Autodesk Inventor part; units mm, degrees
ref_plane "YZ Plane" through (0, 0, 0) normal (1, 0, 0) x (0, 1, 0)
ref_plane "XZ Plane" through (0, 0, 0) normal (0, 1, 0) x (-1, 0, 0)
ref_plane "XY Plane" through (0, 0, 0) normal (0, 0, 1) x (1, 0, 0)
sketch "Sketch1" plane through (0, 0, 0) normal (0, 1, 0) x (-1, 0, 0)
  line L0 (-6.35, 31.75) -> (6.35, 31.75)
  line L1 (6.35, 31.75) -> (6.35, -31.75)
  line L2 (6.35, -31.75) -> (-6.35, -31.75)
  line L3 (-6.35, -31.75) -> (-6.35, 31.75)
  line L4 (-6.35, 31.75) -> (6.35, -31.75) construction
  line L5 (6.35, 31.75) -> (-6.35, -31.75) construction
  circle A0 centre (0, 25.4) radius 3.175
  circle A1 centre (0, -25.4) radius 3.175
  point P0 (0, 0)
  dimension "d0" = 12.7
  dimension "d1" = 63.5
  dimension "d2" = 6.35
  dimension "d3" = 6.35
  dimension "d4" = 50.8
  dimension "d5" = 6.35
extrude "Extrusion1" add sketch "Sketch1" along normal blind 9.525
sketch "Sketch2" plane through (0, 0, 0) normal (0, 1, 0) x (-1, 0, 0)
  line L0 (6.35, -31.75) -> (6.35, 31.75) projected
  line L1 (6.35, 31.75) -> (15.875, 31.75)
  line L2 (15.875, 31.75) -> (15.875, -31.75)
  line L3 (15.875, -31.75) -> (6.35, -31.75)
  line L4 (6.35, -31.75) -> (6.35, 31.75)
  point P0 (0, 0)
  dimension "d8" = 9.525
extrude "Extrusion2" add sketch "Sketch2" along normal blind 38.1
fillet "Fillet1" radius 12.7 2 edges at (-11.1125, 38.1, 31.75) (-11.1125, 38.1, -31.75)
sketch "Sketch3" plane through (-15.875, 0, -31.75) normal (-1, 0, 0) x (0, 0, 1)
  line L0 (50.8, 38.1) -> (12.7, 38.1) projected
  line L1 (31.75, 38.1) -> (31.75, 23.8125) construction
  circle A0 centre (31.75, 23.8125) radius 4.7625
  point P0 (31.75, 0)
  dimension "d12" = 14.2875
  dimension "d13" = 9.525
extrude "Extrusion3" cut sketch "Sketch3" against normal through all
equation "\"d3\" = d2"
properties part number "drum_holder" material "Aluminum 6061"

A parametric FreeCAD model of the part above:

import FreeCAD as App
import Part
import Sketcher
from FreeCAD import Vector
Q = App.Units.Quantity


def edges_at(feature, points):
    """Names of the edges that pass closest to the given points."""
    edges = feature.Shape.Edges
    near = lambda p: min(range(len(edges)), key=lambda i: edges[i].distToShape(Part.Vertex(*p))[0])
    return sorted({f"Edge{near(p) + 1}" for p in points})


def add_polygon(sketch, points):
    """Adds a closed chain of lines whose ends are joined by coincident constraints."""
    first, n = sketch.GeometryCount, len(points)
    for a, b in zip(points, points[1:] + points[:1]):
        sketch.addGeometry(Part.LineSegment(App.Vector(*a, 0), App.Vector(*b, 0)), False)
    for i in range(n):
        sketch.addConstraint(Sketcher.Constraint("Coincident", first + i, 2, first + (i + 1) % n, 1))

doc = App.newDocument("Part")
body = doc.addObject("PartDesign::Body", "Body")

# Sketch on XZ plane
sketch1 = doc.addObject("Sketcher::SketchObject", "Sketch")
body.addObject(sketch1)
sketch1.AttachmentSupport = (doc.XZ_Plane, [""])
sketch1.MapMode = "FlatFace"
add_polygon(sketch1, [(-6.3, 31.8), (6.3, 31.8), (6.3, -31.8), (-6.3, -31.8)])  # lines 0-3
sketch1.addGeometry(Part.Circle(Vector(0, -25.4, 0), Vector(0, 0, 1), 3.2), False)  # 4
sketch1.addGeometry(Part.Circle(Vector(0, 25.4, 0), Vector(0, 0, 1), 3.2), False)  # 5
sketch1.addConstraint(Sketcher.Constraint("Horizontal", 0))
sketch1.addConstraint(Sketcher.Constraint("Vertical", 1))
sketch1.addConstraint(Sketcher.Constraint("Horizontal", 2))
sketch1.addConstraint(Sketcher.Constraint("Vertical", 3))
sketch1.addConstraint(Sketcher.Constraint("Equal", 4, 5))
sketch1.addConstraint(Sketcher.Constraint("Symmetric", 4, 3, 5, 3, -1, 1))
sketch1.addConstraint(Sketcher.Constraint("Symmetric", 0, 2, 2, 2, -1, 1))
sketch1.addConstraint(Sketcher.Constraint("PointOnObject", 4, 3, -2))
sketch1.addConstraint(Sketcher.Constraint("Diameter", 4, Q("0.25 in")))
sketch1.addConstraint(Sketcher.Constraint("DistanceX", 0, 1, 0, 2, Q("0.5 in")))
sketch1.addConstraint(Sketcher.Constraint("DistanceY", 1, 2, 1, 1, Q("2.5 in")))
sketch1.addConstraint(Sketcher.Constraint("DistanceY", 4, 3, 5, 3, Q("2 in")))
pad1 = doc.addObject("PartDesign::Pad", "Pad")
body.addObject(pad1)
pad1.Profile = sketch1
pad1.Length = Q("0.375 in")
pad1.Reversed = True

# Sketch on XZ plane
sketch2 = doc.addObject("Sketcher::SketchObject", "Sketch001")
body.addObject(sketch2)
sketch2.AttachmentSupport = (doc.XZ_Plane, [""])
sketch2.MapMode = "FlatFace"
add_polygon(sketch2, [(-6, 32), (-6, -32), (-16, -32), (-16, 32)])  # lines 0-3
sketch2.addConstraint(Sketcher.Constraint("Vertical", 0))
sketch2.addConstraint(Sketcher.Constraint("Horizontal", 1))
sketch2.addConstraint(Sketcher.Constraint("Vertical", 2))
sketch2.addConstraint(Sketcher.Constraint("Horizontal", 3))
sketch2.addConstraint(Sketcher.Constraint("DistanceX", 1, 2, 1, 1, Q("0.375 in")))
sketch2.addConstraint(Sketcher.Constraint("DistanceY", 0, 2, 0, 1, Q("2.5 in")))
sketch2.addConstraint(Sketcher.Constraint("DistanceX", 0, 2, -1, 1, Q("0.25 in")))
sketch2.addConstraint(Sketcher.Constraint("DistanceY", 0, 2, -1, 1, Q("1.25 in")))
pad2 = doc.addObject("PartDesign::Pad", "Pad001")
body.addObject(pad2)
pad2.Profile = sketch2
pad2.Length = Q("1.5 in")
pad2.Reversed = True
doc.recompute()

fillet = doc.addObject("PartDesign::Fillet", "Fillet")
body.addObject(fillet)
fillet.Base = (pad2, edges_at(pad2, [(-11.113, 38.1, 31.75), (-11.113, 38.1, -31.75)]))
fillet.Radius = Q("0.5 in")

# Sketch on YZ plane
sketch3 = doc.addObject("Sketcher::SketchObject", "Sketch002")
body.addObject(sketch3)
sketch3.AttachmentSupport = (doc.YZ_Plane, [""])
sketch3.MapMode = "FlatFace"
sketch3.AttachmentOffset = App.Placement(Vector(0, 0, -0.625 * 25.4), App.Rotation())
sketch3.addGeometry(Part.Circle(Vector(23.8, 0, 0), Vector(0, 0, 1), 4.8), False)
sketch3.addConstraint(Sketcher.Constraint("PointOnObject", 0, 3, -1))
sketch3.addConstraint(Sketcher.Constraint("Diameter", 0, Q("0.375 in")))
sketch3.addConstraint(Sketcher.Constraint("DistanceX", -1, 1, 0, 3, Q("0.9375 in")))
pocket1 = doc.addObject("PartDesign::Pocket", "Pocket")
body.addObject(pocket1)
pocket1.Profile = sketch3
pocket1.Type = "ThroughAll"
pocket1.Reversed = True

doc.recompute()
